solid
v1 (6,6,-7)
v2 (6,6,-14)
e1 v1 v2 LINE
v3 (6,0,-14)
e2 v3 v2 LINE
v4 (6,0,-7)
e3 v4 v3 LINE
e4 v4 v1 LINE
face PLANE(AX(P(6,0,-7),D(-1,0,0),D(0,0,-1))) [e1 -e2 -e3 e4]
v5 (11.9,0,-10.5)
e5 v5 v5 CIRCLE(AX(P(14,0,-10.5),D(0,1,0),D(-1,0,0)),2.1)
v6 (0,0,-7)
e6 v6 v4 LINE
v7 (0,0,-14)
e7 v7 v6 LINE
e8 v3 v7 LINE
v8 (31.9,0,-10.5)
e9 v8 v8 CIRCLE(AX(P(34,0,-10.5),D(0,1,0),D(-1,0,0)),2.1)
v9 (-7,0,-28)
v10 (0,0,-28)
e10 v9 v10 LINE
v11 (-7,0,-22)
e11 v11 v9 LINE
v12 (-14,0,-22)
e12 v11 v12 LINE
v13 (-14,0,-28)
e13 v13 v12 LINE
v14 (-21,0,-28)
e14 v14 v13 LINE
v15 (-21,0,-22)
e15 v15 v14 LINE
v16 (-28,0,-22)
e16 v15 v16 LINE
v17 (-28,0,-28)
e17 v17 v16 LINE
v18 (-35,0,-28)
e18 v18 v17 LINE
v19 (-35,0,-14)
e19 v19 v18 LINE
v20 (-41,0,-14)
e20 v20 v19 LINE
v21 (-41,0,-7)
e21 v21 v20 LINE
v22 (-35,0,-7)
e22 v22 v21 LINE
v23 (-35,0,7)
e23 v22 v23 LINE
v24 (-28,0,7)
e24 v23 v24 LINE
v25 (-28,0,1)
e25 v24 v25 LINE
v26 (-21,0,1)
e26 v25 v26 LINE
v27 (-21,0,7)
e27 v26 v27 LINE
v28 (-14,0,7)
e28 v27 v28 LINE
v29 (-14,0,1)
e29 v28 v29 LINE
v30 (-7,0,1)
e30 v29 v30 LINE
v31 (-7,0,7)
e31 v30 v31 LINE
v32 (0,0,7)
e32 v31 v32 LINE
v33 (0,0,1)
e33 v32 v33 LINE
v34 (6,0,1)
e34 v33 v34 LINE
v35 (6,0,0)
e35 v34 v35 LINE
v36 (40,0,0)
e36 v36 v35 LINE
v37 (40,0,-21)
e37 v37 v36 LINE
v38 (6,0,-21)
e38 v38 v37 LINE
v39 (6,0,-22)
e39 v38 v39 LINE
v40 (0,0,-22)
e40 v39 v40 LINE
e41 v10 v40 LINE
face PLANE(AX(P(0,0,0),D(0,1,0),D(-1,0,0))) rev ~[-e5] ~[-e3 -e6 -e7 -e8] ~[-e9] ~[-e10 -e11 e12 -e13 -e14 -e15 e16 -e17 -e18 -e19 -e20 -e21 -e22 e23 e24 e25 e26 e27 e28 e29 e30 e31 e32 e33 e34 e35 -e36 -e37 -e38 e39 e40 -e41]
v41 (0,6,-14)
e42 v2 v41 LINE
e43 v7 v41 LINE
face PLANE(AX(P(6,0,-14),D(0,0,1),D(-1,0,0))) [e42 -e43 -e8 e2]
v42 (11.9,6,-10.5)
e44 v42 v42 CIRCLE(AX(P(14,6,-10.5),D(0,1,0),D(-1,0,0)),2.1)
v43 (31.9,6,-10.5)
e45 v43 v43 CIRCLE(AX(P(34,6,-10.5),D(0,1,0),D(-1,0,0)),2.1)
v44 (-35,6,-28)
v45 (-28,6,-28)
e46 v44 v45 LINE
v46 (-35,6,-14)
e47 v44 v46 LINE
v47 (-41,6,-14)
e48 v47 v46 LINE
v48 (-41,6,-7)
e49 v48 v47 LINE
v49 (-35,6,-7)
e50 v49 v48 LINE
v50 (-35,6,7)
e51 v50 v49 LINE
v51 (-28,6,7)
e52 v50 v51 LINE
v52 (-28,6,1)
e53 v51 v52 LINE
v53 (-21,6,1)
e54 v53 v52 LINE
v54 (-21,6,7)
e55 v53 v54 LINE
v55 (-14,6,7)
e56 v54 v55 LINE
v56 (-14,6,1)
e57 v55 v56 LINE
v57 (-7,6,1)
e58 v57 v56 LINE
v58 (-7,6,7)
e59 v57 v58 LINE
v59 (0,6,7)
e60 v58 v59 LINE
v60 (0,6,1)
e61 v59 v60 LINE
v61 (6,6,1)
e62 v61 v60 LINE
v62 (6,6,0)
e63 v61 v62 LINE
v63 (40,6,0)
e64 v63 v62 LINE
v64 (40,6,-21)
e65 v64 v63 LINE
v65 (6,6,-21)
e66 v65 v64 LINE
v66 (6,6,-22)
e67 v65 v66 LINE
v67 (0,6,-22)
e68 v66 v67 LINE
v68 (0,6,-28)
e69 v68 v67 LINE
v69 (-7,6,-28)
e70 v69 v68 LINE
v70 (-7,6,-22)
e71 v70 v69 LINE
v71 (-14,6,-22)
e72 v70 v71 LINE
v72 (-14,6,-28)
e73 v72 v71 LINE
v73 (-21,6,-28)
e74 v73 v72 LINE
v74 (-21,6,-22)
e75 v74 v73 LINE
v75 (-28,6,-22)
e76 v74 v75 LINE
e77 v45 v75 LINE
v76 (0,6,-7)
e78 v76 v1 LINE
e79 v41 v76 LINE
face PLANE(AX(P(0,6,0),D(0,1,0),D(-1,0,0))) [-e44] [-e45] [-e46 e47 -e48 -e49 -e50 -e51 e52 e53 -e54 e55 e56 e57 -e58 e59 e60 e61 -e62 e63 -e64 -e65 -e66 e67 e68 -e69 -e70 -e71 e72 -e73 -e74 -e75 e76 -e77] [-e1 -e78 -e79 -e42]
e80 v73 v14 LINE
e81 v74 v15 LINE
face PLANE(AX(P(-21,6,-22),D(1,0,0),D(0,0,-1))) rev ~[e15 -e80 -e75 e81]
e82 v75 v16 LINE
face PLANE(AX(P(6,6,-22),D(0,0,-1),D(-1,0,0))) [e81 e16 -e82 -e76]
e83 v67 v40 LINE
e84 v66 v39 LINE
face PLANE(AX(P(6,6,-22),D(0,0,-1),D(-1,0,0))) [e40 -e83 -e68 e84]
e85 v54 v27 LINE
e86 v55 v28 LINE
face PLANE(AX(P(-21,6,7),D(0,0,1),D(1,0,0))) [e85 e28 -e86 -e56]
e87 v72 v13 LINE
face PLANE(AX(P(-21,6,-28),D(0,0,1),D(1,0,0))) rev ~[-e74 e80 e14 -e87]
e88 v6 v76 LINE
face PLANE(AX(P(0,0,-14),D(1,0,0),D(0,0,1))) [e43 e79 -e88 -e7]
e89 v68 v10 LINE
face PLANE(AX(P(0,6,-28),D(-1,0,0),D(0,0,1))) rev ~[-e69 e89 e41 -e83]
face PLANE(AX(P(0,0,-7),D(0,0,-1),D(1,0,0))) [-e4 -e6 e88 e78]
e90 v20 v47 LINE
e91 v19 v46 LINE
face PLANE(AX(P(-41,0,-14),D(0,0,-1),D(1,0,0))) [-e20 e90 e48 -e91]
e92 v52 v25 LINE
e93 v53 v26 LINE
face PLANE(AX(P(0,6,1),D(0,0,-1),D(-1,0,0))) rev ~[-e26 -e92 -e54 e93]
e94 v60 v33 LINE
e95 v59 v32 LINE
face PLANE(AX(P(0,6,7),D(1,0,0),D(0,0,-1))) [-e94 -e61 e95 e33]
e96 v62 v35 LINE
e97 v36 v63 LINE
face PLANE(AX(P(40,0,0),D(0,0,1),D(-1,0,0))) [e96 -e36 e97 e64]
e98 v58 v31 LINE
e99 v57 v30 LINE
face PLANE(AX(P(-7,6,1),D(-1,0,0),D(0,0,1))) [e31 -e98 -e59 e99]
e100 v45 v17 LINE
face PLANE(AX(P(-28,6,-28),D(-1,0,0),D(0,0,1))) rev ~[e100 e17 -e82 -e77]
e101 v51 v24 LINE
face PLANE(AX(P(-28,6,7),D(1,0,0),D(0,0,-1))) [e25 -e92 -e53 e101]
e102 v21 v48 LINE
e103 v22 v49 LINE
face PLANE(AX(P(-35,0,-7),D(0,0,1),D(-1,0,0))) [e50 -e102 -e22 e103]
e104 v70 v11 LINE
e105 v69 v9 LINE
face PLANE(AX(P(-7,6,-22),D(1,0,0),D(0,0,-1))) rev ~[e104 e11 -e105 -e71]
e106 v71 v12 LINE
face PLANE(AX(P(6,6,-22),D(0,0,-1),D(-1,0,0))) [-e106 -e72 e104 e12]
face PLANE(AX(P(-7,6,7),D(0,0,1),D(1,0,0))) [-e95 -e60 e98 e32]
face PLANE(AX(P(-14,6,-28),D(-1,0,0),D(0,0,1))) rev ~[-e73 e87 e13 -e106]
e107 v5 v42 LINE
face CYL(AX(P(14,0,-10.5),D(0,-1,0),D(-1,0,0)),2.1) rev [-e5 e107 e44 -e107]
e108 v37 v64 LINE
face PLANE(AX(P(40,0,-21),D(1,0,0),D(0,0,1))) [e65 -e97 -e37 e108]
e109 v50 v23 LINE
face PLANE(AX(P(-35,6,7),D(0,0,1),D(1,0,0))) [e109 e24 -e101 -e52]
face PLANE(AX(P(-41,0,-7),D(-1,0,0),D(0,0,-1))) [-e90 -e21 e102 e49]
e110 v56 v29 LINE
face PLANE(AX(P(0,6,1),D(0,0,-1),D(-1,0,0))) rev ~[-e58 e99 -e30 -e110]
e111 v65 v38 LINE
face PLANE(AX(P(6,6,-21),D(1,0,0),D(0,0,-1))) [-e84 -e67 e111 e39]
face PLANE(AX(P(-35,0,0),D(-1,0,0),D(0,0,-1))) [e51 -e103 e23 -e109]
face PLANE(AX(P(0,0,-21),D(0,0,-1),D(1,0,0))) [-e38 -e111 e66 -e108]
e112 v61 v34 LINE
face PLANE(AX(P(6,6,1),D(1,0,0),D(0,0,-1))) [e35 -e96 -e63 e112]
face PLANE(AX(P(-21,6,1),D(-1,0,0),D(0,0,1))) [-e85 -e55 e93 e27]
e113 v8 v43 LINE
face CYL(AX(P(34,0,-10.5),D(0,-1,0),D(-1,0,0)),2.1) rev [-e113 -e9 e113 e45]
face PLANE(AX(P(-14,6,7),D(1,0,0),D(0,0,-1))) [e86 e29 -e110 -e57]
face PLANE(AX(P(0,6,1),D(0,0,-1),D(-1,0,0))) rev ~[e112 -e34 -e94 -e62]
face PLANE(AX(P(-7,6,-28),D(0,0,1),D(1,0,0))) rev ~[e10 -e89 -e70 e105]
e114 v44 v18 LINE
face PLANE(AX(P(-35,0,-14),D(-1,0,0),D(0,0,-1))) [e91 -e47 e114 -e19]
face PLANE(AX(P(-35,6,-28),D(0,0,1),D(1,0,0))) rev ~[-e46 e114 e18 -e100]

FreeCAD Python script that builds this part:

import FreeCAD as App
import Part
import Sketcher


def add_polygon(sketch, points):
    """Adds a closed chain of lines whose ends are joined by coincident constraints."""
    first, n = sketch.GeometryCount, len(points)
    for a, b in zip(points, points[1:] + points[:1]):
        sketch.addGeometry(Part.LineSegment(App.Vector(*a, 0), App.Vector(*b, 0)), False)
    for i in range(n):
        sketch.addConstraint(Sketcher.Constraint("Coincident", first + i, 2, first + (i + 1) % n, 1))

doc = App.newDocument("Part")
body = doc.addObject("PartDesign::Body", "Body")

# Sketch on XZ plane
sketch1 = body.newObject("Sketcher::SketchObject", "Sketch")
sketch1.AttachmentSupport = (doc.getObject("XZ_Plane"), [""])
sketch1.MapMode = "FlatFace"
add_polygon(sketch1, [(-35, 0), (40, 0), (40, -21), (-35, -21), (-35, -14), (-41, -14), (-41, -7), (-35, -7)])  # lines 0-7
sketch1.addGeometry(Part.Circle(App.Vector(34, -10.5, 0), App.Vector(0, 0, 1), 2.1), False)  # 8
sketch1.addGeometry(Part.Circle(App.Vector(14, -10.5, 0), App.Vector(0, 0, 1), 2.1), False)  # 9
add_polygon(sketch1, [(6, -7), (0, -7), (0, -14), (6, -14)])  # lines 10-13
sketch1.addConstraint([
    Sketcher.Constraint("Horizontal", 0),
    Sketcher.Constraint("Vertical", 1),
    Sketcher.Constraint("Horizontal", 2),
    Sketcher.Constraint("Vertical", 3),
    Sketcher.Constraint("Horizontal", 4),
    Sketcher.Constraint("Vertical", 5),
    Sketcher.Constraint("Horizontal", 6),
    Sketcher.Constraint("Vertical", 7),
    Sketcher.Constraint("Horizontal", 10),
    Sketcher.Constraint("Vertical", 11),
    Sketcher.Constraint("Horizontal", 12),
    Sketcher.Constraint("Vertical", 13),
    Sketcher.Constraint("Equal", 8, 9),
    Sketcher.Constraint("PointOnObject", 0, 2, -1),
    Sketcher.Constraint("PointOnObject", 10, 2, -2),
    Sketcher.Constraint("Horizontal", 8, 3, 9, 3),
    Sketcher.Constraint("Horizontal", 6, 2, 10, 2),
    Sketcher.Constraint("Horizontal", 4, 2, 11, 2),
    Sketcher.Constraint("Vertical", 3, 2, 6, 2),
    Sketcher.Constraint("Equal", 6, 10),
    Sketcher.Constraint("Equal", 3, 5),
    Sketcher.Constraint("Equal", 5, 7),
    Sketcher.Constraint("Diameter", 8, 4.2),
    Sketcher.Constraint("DistanceX", 4, 2, 4, 1, 6.0),
    Sketcher.Constraint("DistanceY", 1, 2, 1, 1, 21.0),
    Sketcher.Constraint("DistanceX", -1, 1, 0, 2, 40.0),
    Sketcher.Constraint("DistanceX", 2, 2, -1, 1, 35.0),
    Sketcher.Constraint("DistanceX", 8, 3, 0, 2, 6.0),
    Sketcher.Constraint("DistanceX", -1, 1, 9, 3, 14.0),
    Sketcher.Constraint("DistanceY", 8, 3, -1, 1, 10.5),
])
pad1 = body.newObject("PartDesign::Pad", "Pad")
pad1.Profile = sketch1
pad1.Length = 6
pad1.Reversed = True

# Sketch on XZ plane
sketch2 = body.newObject("Sketcher::SketchObject", "Sketch001")
sketch2.AttachmentSupport = (doc.getObject("XZ_Plane"), [""])
sketch2.MapMode = "FlatFace"
sketch2.AttachmentOffset = App.Placement(App.Vector(0, 0, -6), App.Rotation())
add_polygon(sketch2, [(-35, 1), (6, 1), (6, 0), (-35, 0)])  # lines 0-3
add_polygon(sketch2, [(-35, -22), (-35, -21), (6, -21), (6, -22)])  # lines 4-7
sketch2.addConstraint([
    Sketcher.Constraint("Horizontal", 0),
    Sketcher.Constraint("Vertical", 1),
    Sketcher.Constraint("Horizontal", 2),
    Sketcher.Constraint("Vertical", 3),
    Sketcher.Constraint("Vertical", 4),
    Sketcher.Constraint("Horizontal", 5),
    Sketcher.Constraint("Vertical", 6),
    Sketcher.Constraint("Horizontal", 7),
    Sketcher.Constraint("PointOnObject", 1, 2, -1),
    Sketcher.Constraint("Vertical", 3, 2, 4, 2),
    Sketcher.Constraint("Vertical", 1, 2, 5, 2),
    Sketcher.Constraint("Equal", 3, 4),
    Sketcher.Constraint("DistanceX", 0, 1, 0, 2, 41.0),
    Sketcher.Constraint("DistanceY", 1, 2, 1, 1, 1.0),
    Sketcher.Constraint("DistanceX", -1, 1, 0, 2, 6.0),
    Sketcher.Constraint("DistanceY", 4, 2, -1, 1, 21.0),
])
pad2 = body.newObject("PartDesign::Pad", "Pad001")
pad2.Profile = sketch2
pad2.Length = 6

# Sketch on XZ plane
sketch3 = body.newObject("Sketcher::SketchObject", "Sketch002")
sketch3.AttachmentSupport = (doc.getObject("XZ_Plane"), [""])
sketch3.MapMode = "FlatFace"
sketch3.AttachmentOffset = App.Placement(App.Vector(0, 0, -6), App.Rotation())
add_polygon(sketch3, [(0, 7), (0, 1), (-7, 1), (-7, 7)])  # lines 0-3
add_polygon(sketch3, [(-7, -22), (0, -22), (0, -28), (-7, -28)])  # lines 4-7
sketch3.addConstraint([
    Sketcher.Constraint("Vertical", 0),
    Sketcher.Constraint("Horizontal", 1),
    Sketcher.Constraint("Vertical", 2),
    Sketcher.Constraint("Horizontal", 3),
    Sketcher.Constraint("Horizontal", 4),
    Sketcher.Constraint("Vertical", 5),
    Sketcher.Constraint("Horizontal", 6),
    Sketcher.Constraint("Vertical", 7),
    Sketcher.Constraint("PointOnObject", 0, 2, -2),
    Sketcher.Constraint("PointOnObject", 4, 2, -2),
    Sketcher.Constraint("Vertical", 2, 2, 6, 2),
    Sketcher.Constraint("Equal", 2, 5),
    Sketcher.Constraint("DistanceX", 1, 2, 1, 1, 7.0),
    Sketcher.Constraint("DistanceY", 0, 2, 0, 1, 6.0),
    Sketcher.Constraint("DistanceY", -1, 1, 2, 2, 7.0),
    Sketcher.Constraint("DistanceY", 4, 2, -1, 1, 22.0),
])
pad3 = body.newObject("PartDesign::Pad", "Pad002")
pad3.Profile = sketch3
pad3.Length = 6
doc.recompute()

linearpattern = body.newObject("PartDesign::LinearPattern", "LinearPattern")
linearpattern.Originals = [pad3]
linearpattern.Direction = (doc.getObject("X_Axis"), [""])
linearpattern.Mode = "offset"
linearpattern.Offset = 14
linearpattern.Occurrences = 3
linearpattern.Reversed = True
body.Tip = linearpattern

doc.recompute()
